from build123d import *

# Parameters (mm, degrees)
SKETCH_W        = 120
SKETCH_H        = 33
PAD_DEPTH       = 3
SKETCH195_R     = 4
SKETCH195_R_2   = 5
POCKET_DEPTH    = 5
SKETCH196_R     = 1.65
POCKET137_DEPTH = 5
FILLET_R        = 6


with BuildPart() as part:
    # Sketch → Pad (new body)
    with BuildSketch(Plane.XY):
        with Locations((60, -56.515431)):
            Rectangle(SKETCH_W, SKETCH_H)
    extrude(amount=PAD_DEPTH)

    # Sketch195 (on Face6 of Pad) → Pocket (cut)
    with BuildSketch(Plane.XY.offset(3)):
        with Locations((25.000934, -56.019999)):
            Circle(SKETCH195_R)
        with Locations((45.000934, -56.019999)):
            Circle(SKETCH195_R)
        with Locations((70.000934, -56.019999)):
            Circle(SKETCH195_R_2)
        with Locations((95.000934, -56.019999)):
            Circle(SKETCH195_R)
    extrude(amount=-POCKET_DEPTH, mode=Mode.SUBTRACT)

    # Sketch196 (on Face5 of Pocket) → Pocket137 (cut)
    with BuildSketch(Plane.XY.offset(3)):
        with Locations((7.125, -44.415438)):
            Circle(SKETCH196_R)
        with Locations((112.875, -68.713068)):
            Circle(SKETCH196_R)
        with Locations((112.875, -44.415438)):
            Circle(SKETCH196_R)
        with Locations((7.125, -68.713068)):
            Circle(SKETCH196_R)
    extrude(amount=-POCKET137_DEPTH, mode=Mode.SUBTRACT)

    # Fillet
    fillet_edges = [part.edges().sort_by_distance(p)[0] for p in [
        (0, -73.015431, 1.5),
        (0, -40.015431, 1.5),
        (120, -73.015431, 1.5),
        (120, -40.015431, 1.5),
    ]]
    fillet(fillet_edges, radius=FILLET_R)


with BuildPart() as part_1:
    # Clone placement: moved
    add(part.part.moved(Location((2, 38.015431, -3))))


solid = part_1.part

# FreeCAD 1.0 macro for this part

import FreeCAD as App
import Part
import Sketcher

V = App.Vector


def edges_at(feature, points):
    """Names of the edges that pass closest to the given points."""
    edges = feature.Shape.Edges
    near = lambda p: min(range(len(edges)), key=lambda i: edges[i].distToShape(Part.Vertex(*p))[0])
    return sorted({f"Edge{near(p) + 1}" for p in points})

doc = App.newDocument("Part")
body = doc.addObject("PartDesign::Body", "Body")

sketch1 = doc.addObject("Sketcher::SketchObject", "Sketch")
body.addObject(sketch1)
sketch1.AttachmentSupport = (doc.XY_Plane, [""])
sketch1.MapMode = "FlatFace"
sketch1.addGeometry(Part.LineSegment(V(0, -40, 0), V(0, -73, 0)), False)
sketch1.addGeometry(Part.LineSegment(V(0, -73, 0), V(120, -73, 0)), False)
sketch1.addGeometry(Part.LineSegment(V(120, -73, 0), V(120, -40, 0)), False)
sketch1.addGeometry(Part.LineSegment(V(120, -40, 0), V(0, -40, 0)), False)
sketch1.addConstraint(Sketcher.Constraint("Coincident", 0, 2, 1, 1))
sketch1.addConstraint(Sketcher.Constraint("Coincident", 1, 2, 2, 1))
sketch1.addConstraint(Sketcher.Constraint("Coincident", 2, 2, 3, 1))
sketch1.addConstraint(Sketcher.Constraint("Coincident", 3, 2, 0, 1))
sketch1.addConstraint(Sketcher.Constraint("Vertical", 0))
sketch1.addConstraint(Sketcher.Constraint("Horizontal", 1))
sketch1.addConstraint(Sketcher.Constraint("Vertical", 2))
sketch1.addConstraint(Sketcher.Constraint("Horizontal", 3))
sketch1.addConstraint(Sketcher.Constraint("PointOnObject", 0, 2, -2))
sketch1.addConstraint(Sketcher.Constraint("DistanceX", 1, 1, 1, 2, 120.0))
sketch1.addConstraint(Sketcher.Constraint("DistanceY", 0, 2, 0, 1, 33.0))
sketch1.addConstraint(Sketcher.Constraint("DistanceY", 0, 2, -1, 1, 73.015431))
pad1 = doc.addObject("PartDesign::Pad", "Pad")
body.addObject(pad1)
pad1.Profile = sketch1
pad1.Length = 3

sketch2 = doc.addObject("Sketcher::SketchObject", "Sketch001")
body.addObject(sketch2)
sketch2.AttachmentSupport = (doc.XY_Plane, [""])
sketch2.MapMode = "FlatFace"
sketch2.AttachmentOffset = App.Placement(V(0, 0, 3), App.Rotation())
sketch2.addGeometry(Part.Circle(V(25, -56, 0), V(0, 0, 1), 4), False)
sketch2.addGeometry(Part.Circle(V(45, -56, 0), V(0, 0, 1), 4), False)
sketch2.addGeometry(Part.Circle(V(70, -56, 0), V(0, 0, 1), 5), False)
sketch2.addGeometry(Part.Circle(V(95, -56, 0), V(0, 0, 1), 4), False)
sketch2.addConstraint(Sketcher.Constraint("Equal", 0, 1))
sketch2.addConstraint(Sketcher.Constraint("Equal", 1, 3))
sketch2.addConstraint(Sketcher.Constraint("Horizontal", 0, 3, 1, 3))
sketch2.addConstraint(Sketcher.Constraint("Horizontal", 1, 3, 2, 3))
sketch2.addConstraint(Sketcher.Constraint("Horizontal", 2, 3, 3, 3))
sketch2.addConstraint(Sketcher.Constraint("Diameter", 0, 8.0))
sketch2.addConstraint(Sketcher.Constraint("Diameter", 2, 10.0))
sketch2.addConstraint(Sketcher.Constraint("DistanceX", 0, 3, 1, 3, 20.0))
sketch2.addConstraint(Sketcher.Constraint("DistanceX", 1, 3, 2, 3, 25.0))
sketch2.addConstraint(Sketcher.Constraint("DistanceX", 2, 3, 3, 3, 25.0))
sketch2.addConstraint(Sketcher.Constraint("DistanceY", 0, 3, -1, 1, 56.019999))
sketch2.addConstraint(Sketcher.Constraint("DistanceX", -1, 1, 0, 3, 25.000934))
pocket1 = doc.addObject("PartDesign::Pocket", "Pocket")
body.addObject(pocket1)
pocket1.Profile = sketch2
pocket1.Length = 5

sketch3 = doc.addObject("Sketcher::SketchObject", "Sketch002")
body.addObject(sketch3)
sketch3.AttachmentSupport = (doc.XY_Plane, [""])
sketch3.MapMode = "FlatFace"
sketch3.AttachmentOffset = App.Placement(V(0, 0, 3), App.Rotation())
sketch3.addGeometry(Part.Circle(V(7.1, -44.4, 0), V(0, 0, 1), 1.6), False)
sketch3.addGeometry(Part.Circle(V(112.9, -68.7, 0), V(0, 0, 1), 1.6), False)
sketch3.addGeometry(Part.Circle(V(112.9, -44.4, 0), V(0, 0, 1), 1.6), False)
sketch3.addGeometry(Part.Circle(V(7.1, -68.7, 0), V(0, 0, 1), 1.6), False)
sketch3.addConstraint(Sketcher.Constraint("Equal", 0, 1))
sketch3.addConstraint(Sketcher.Constraint("Equal", 1, 2))
sketch3.addConstraint(Sketcher.Constraint("Equal", 2, 3))
sketch3.addConstraint(Sketcher.Constraint("Horizontal", 0, 3, 2, 3))
sketch3.addConstraint(Sketcher.Constraint("Horizontal", 1, 3, 3, 3))
sketch3.addConstraint(Sketcher.Constraint("Vertical", 1, 3, 2, 3))
sketch3.addConstraint(Sketcher.Constraint("Vertical", 0, 3, 3, 3))
sketch3.addConstraint(Sketcher.Constraint("Diameter", 0, 3.3))
sketch3.addConstraint(Sketcher.Constraint("DistanceX", 0, 3, 1, 3, 105.75))
sketch3.addConstraint(Sketcher.Constraint("DistanceX", -1, 1, 0, 3, 7.125))
sketch3.addConstraint(Sketcher.Constraint("DistanceY", 0, 3, -1, 1, 44.415438))
sketch3.addConstraint(Sketcher.Constraint("DistanceY", 1, 3, -1, 1, 68.713068))
pocket2 = doc.addObject("PartDesign::Pocket", "Pocket001")
body.addObject(pocket2)
pocket2.Profile = sketch3
pocket2.Length = 5
doc.recompute()

fillet = doc.addObject("PartDesign::Fillet", "Fillet")
body.addObject(fillet)
fillet.Base = (pocket2, edges_at(pocket2, [
    (0, -73.015, 1.5),
    (0, -40.015, 1.5),
    (120, -73.015, 1.5),
    (120, -40.015, 1.5),
]))
fillet.Radius = 6
body2 = doc.addObject("PartDesign::Body", "Body001")
doc.recompute()

body.Placement = App.Placement(V(2, 38.015431, -3), App.Rotation(V(0, 0, 1), 0))
boolean = doc.addObject("PartDesign::Boolean", "Boolean")
body2.addObject(boolean)
boolean.Type = "Fuse"
boolean.addObjects([body])

doc.recompute()
